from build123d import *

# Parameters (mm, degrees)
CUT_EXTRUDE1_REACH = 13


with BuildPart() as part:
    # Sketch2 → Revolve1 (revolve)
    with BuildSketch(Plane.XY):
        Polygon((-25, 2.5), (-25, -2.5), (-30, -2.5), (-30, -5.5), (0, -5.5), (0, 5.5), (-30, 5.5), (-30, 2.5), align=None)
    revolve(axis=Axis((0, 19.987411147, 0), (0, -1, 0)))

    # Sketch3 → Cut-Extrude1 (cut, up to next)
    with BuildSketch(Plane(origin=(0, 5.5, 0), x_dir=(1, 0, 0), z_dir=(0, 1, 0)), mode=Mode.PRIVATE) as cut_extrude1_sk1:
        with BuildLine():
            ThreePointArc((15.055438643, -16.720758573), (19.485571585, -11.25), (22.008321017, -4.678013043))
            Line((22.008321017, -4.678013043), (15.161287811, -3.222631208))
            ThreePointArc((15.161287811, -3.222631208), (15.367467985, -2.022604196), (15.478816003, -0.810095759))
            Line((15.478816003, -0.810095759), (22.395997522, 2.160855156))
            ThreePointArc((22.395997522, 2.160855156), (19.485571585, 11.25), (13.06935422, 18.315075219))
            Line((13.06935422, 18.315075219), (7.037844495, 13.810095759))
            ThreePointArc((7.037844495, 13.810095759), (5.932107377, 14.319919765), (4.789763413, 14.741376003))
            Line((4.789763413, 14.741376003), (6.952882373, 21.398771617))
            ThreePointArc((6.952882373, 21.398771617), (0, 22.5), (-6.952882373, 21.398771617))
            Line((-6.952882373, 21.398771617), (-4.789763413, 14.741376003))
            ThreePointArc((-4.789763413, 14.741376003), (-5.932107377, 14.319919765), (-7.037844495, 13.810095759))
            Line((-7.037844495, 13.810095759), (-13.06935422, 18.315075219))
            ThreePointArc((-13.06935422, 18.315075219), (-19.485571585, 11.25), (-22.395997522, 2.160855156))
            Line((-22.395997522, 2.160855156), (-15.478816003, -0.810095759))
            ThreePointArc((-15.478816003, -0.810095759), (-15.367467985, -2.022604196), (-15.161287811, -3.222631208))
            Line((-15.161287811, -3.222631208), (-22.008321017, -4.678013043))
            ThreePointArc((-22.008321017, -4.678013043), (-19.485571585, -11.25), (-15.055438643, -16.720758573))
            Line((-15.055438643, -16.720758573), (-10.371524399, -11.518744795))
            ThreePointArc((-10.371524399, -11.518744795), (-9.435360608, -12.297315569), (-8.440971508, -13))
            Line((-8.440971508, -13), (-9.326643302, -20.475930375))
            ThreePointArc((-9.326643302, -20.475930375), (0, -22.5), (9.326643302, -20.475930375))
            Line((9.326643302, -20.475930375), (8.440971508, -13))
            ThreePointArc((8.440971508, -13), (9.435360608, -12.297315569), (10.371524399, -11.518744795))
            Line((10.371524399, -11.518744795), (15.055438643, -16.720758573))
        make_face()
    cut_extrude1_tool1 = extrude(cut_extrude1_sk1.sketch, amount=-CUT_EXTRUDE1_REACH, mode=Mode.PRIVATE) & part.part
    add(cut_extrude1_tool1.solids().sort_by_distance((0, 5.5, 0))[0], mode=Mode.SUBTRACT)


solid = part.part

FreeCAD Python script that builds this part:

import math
import FreeCAD as App
import Part
import Sketcher
from FreeCAD import Vector
Q = App.Units.Quantity

doc = App.newDocument("Part")
body = doc.addObject("PartDesign::Body", "Body")

# Sketch on XY plane
sketch1 = body.newObject("Sketcher::SketchObject", "Sketch")
sketch1.AttachmentSupport = (doc.getObject("XY_Plane"), [""])
sketch1.MapMode = "FlatFace"
sketch1.addGeometry([
    Part.LineSegment(Vector(-25, 2.5, 0), Vector(-25, -2.5, 0)),  # 0
    Part.LineSegment(Vector(-25, -2.5, 0), Vector(-30, -2.5, 0)),  # 1
    Part.LineSegment(Vector(-30, -2.5, 0), Vector(-30, -5.5, 0)),  # 2
    Part.LineSegment(Vector(-30, -5.5, 0), Vector(0, -5.5, 0)),  # 3
    Part.LineSegment(Vector(0, -5.5, 0), Vector(0, 5.5, 0)),  # 4
    Part.LineSegment(Vector(0, 5.5, 0), Vector(-30, 5.5, 0)),  # 5
    Part.LineSegment(Vector(-30, 5.5, 0), Vector(-30, 2.5, 0)),  # 6
    Part.LineSegment(Vector(-30, 2.5, 0), Vector(-25, 2.5, 0)),  # 7
], False)
sketch1.addConstraint([
    Sketcher.Constraint("Coincident", 0, 2, 1, 1),
    Sketcher.Constraint("Coincident", 1, 2, 2, 1),
    Sketcher.Constraint("Coincident", 2, 2, 3, 1),
    Sketcher.Constraint("Coincident", 3, 2, 4, 1),
    Sketcher.Constraint("Coincident", 4, 2, 5, 1),
    Sketcher.Constraint("Coincident", 5, 2, 6, 1),
    Sketcher.Constraint("Coincident", 6, 2, 7, 1),
    Sketcher.Constraint("Coincident", 7, 2, 0, 1),
    Sketcher.Constraint("Vertical", 0),
    Sketcher.Constraint("Horizontal", 1),
    Sketcher.Constraint("Vertical", 2),
    Sketcher.Constraint("Horizontal", 3),
    Sketcher.Constraint("Vertical", 4),
    Sketcher.Constraint("Horizontal", 5),
    Sketcher.Constraint("Vertical", 6),
    Sketcher.Constraint("Horizontal", 7),
    Sketcher.Constraint("Symmetric", 3, 2, 4, 2, -1, 1),
    Sketcher.Constraint("Symmetric", 1, 2, 6, 2, -1),
    Sketcher.Constraint("Equal", 7, 0),
    Sketcher.Constraint("DistanceX", 1, 2, 1, 1, Q("5 mm")),
    Sketcher.Constraint("DistanceX", 3, 1, 3, 2, Q("30 mm")),
    Sketcher.Constraint("DistanceY", 2, 2, 2, 1, Q("3 mm")),
])
revolution = body.newObject("PartDesign::Revolution", "Revolution")
revolution.Profile = sketch1
revolution.ReferenceAxis = (sketch1, ["V_Axis"])
revolution.Angle = 360

# Sketch on XZ plane
sketch2 = body.newObject("Sketcher::SketchObject", "Sketch001")
sketch2.AttachmentSupport = (doc.getObject("XZ_Plane"), [""])
sketch2.MapMode = "FlatFace"
sketch2.AttachmentOffset = App.Placement(Vector(0, 0, -5.5), App.Rotation())
sketch2.addGeometry([
    Part.ArcOfCircle(Part.Circle(Vector(0, 0, 0), Vector(0, 0, 1), 22.5), math.radians(12), math.radians(48)),  # 0
    Part.LineSegment(Vector(22, 4.7, 0), Vector(15.2, 3.2, 0)),  # 1
    Part.ArcOfCircle(Part.Circle(Vector(0, 0, 0), Vector(0, 0, 1), 15.5), math.radians(3), math.radians(12)),  # 2
    Part.LineSegment(Vector(15.5, 0.8, 0), Vector(22.4, -2.2, 0)),  # 3
    Part.ArcOfCircle(Part.Circle(Vector(0, 0, 0), Vector(0, 0, 1), 22.5), math.radians(-54), math.radians(-6)),  # 4
    Part.LineSegment(Vector(13.1, -18.3, 0), Vector(7, -13.8, 0)),  # 5
    Part.ArcOfCircle(Part.Circle(Vector(0, 0, 0), Vector(0, 0, 1), 15.5), math.radians(-72), math.radians(-63)),  # 6
    Part.LineSegment(Vector(4.8, -14.7, 0), Vector(7, -21.4, 0)),  # 7
    Part.ArcOfCircle(Part.Circle(Vector(0, 0, 0), Vector(0, 0, 1), 22.5), math.radians(-108), math.radians(-72)),  # 8
    Part.LineSegment(Vector(-7, -21.4, 0), Vector(-4.8, -14.7, 0)),  # 9
    Part.ArcOfCircle(Part.Circle(Vector(0, 0, 0), Vector(0, 0, 1), 15.5), math.radians(-117), math.radians(-108)),  # 10
    Part.LineSegment(Vector(-7, -13.8, 0), Vector(-13.1, -18.3, 0)),  # 11
    Part.ArcOfCircle(Part.Circle(Vector(0, 0, 0), Vector(0, 0, 1), 22.5), math.radians(-174), math.radians(-126)),  # 12
    Part.LineSegment(Vector(-22.4, -2.2, 0), Vector(-15.5, 0.8, 0)),  # 13
    Part.ArcOfCircle(Part.Circle(Vector(0, 0, 0), Vector(0, 0, 1), 15.5), math.radians(168), math.radians(177)),  # 14
    Part.LineSegment(Vector(-15.2, 3.2, 0), Vector(-22, 4.7, 0)),  # 15
    Part.ArcOfCircle(Part.Circle(Vector(0, 0, 0), Vector(0, 0, 1), 22.5), math.radians(132), math.radians(168)),  # 16
    Part.LineSegment(Vector(-15.1, 16.7, 0), Vector(-10.4, 11.5, 0)),  # 17
    Part.ArcOfCircle(Part.Circle(Vector(0, 0, 0), Vector(0, 0, 1), 15.5), math.radians(123), math.radians(132)),  # 18
    Part.LineSegment(Vector(-8.4, 13, 0), Vector(-9.3, 20.5, 0)),  # 19
    Part.ArcOfCircle(Part.Circle(Vector(0, 0, 0), Vector(0, 0, 1), 22.5), math.radians(66), math.radians(114)),  # 20
    Part.LineSegment(Vector(9.3, 20.5, 0), Vector(8.4, 13, 0)),  # 21
    Part.ArcOfCircle(Part.Circle(Vector(0, 0, 0), Vector(0, 0, 1), 15.5), math.radians(48), math.radians(57)),  # 22
    Part.LineSegment(Vector(10.4, 11.5, 0), Vector(15.1, 16.7, 0)),  # 23
], False)
sketch2.addConstraint([
    Sketcher.Constraint("Coincident", 0, 1, 1, 1),
    Sketcher.Constraint("Coincident", 1, 2, 2, 2),
    Sketcher.Constraint("Coincident", 2, 1, 3, 1),
    Sketcher.Constraint("Coincident", 3, 2, 4, 2),
    Sketcher.Constraint("Coincident", 4, 1, 5, 1),
    Sketcher.Constraint("Coincident", 5, 2, 6, 2),
    Sketcher.Constraint("Coincident", 6, 1, 7, 1),
    Sketcher.Constraint("Coincident", 7, 2, 8, 2),
    Sketcher.Constraint("Coincident", 8, 1, 9, 1),
    Sketcher.Constraint("Coincident", 9, 2, 10, 2),
    Sketcher.Constraint("Coincident", 10, 1, 11, 1),
    Sketcher.Constraint("Coincident", 11, 2, 12, 2),
    Sketcher.Constraint("Coincident", 12, 1, 13, 1),
    Sketcher.Constraint("Coincident", 13, 2, 14, 2),
    Sketcher.Constraint("Coincident", 14, 1, 15, 1),
    Sketcher.Constraint("Coincident", 15, 2, 16, 2),
    Sketcher.Constraint("Coincident", 16, 1, 17, 1),
    Sketcher.Constraint("Coincident", 17, 2, 18, 2),
    Sketcher.Constraint("Coincident", 18, 1, 19, 1),
    Sketcher.Constraint("Coincident", 19, 2, 20, 2),
    Sketcher.Constraint("Coincident", 20, 1, 21, 1),
    Sketcher.Constraint("Coincident", 21, 2, 22, 2),
    Sketcher.Constraint("Coincident", 22, 1, 23, 1),
    Sketcher.Constraint("Coincident", 23, 2, 0, 2),
    Sketcher.Constraint("Coincident", 0, 3, -1, 1),
    Sketcher.Constraint("Coincident", 2, 3, -1, 1),
    Sketcher.Constraint("Coincident", 4, 3, -1, 1),
    Sketcher.Constraint("Coincident", 6, 3, -1, 1),
    Sketcher.Constraint("Coincident", 8, 3, -1, 1),
    Sketcher.Constraint("Coincident", 10, 3, -1, 1),
    Sketcher.Constraint("Coincident", 12, 3, -1, 1),
    Sketcher.Constraint("Coincident", 14, 3, -1, 1),
    Sketcher.Constraint("Coincident", 16, 3, -1, 1),
    Sketcher.Constraint("Coincident", 18, 3, -1, 1),
    Sketcher.Constraint("Coincident", 20, 3, -1, 1),
    Sketcher.Constraint("Coincident", 22, 3, -1, 1),
    Sketcher.Constraint("Equal", 0, 4),
    Sketcher.Constraint("Equal", 2, 6),
    Sketcher.Constraint("Equal", 4, 8),
    Sketcher.Constraint("Equal", 6, 10),
    Sketcher.Constraint("Equal", 8, 12),
    Sketcher.Constraint("Equal", 10, 14),
    Sketcher.Constraint("Equal", 12, 16),
    Sketcher.Constraint("Equal", 14, 18),
    Sketcher.Constraint("Equal", 16, 20),
    Sketcher.Constraint("Equal", 18, 22),
    Sketcher.Constraint("Horizontal", 7, 2, 8, 1),
    Sketcher.Constraint("Horizontal", 6, 1, 9, 2),
    Sketcher.Constraint("Horizontal", 5, 2, 10, 1),
    Sketcher.Constraint("Horizontal", 4, 1, 11, 2),
    Sketcher.Constraint("Horizontal", 3, 2, 12, 1),
    Sketcher.Constraint("Horizontal", 2, 1, 13, 2),
    Sketcher.Constraint("Horizontal", 1, 2, 14, 1),
    Sketcher.Constraint("Horizontal", 0, 1, 15, 2),
    Sketcher.Constraint("Horizontal", 19, 2, 20, 1),
    Sketcher.Constraint("Horizontal", 18, 1, 21, 2),
    Sketcher.Constraint("Horizontal", 17, 2, 22, 1),
    Sketcher.Constraint("Horizontal", 16, 1, 23, 2),
    Sketcher.Constraint("Equal", 3, 5),
    Sketcher.Constraint("Equal", 13, 19),
    Sketcher.Constraint("Radius", 0, Q("22.5 mm")),
    Sketcher.Constraint("Radius", 2, Q("15.5 mm")),
    Sketcher.Constraint("Angle", 1, Q("-168 deg")),
    Sketcher.Constraint("Angle", 7, Q("-72 deg")),
    Sketcher.Constraint("Angle", 17, Q("-48 deg")),
    Sketcher.Constraint("DistanceY", -1, 1, 18, 1, Q("13 mm")),
    Sketcher.Constraint("DistanceY", 4, 1, 6, 1, Q("3.573699 mm")),
    Sketcher.Constraint("DistanceY", 14, 1, 19, 2, Q("17.253299 mm")),
    Sketcher.Constraint("Distance", 3, Q("7.52821 mm")),
    Sketcher.Constraint("DistanceY", 7, 2, -1, 1, Q("21.398772 mm")),
    Sketcher.Constraint("DistanceX", 16, 1, -1, 1, Q("15.055439 mm")),
    Sketcher.Constraint("DistanceX", 1, 2, 2, 1, Q("0.317528 mm")),
])
pocket1 = body.newObject("PartDesign::Pocket", "Pocket")
pocket1.Profile = sketch2
pocket1.Type = "UpToFirst"
pocket1.Reversed = True

doc.recompute()
